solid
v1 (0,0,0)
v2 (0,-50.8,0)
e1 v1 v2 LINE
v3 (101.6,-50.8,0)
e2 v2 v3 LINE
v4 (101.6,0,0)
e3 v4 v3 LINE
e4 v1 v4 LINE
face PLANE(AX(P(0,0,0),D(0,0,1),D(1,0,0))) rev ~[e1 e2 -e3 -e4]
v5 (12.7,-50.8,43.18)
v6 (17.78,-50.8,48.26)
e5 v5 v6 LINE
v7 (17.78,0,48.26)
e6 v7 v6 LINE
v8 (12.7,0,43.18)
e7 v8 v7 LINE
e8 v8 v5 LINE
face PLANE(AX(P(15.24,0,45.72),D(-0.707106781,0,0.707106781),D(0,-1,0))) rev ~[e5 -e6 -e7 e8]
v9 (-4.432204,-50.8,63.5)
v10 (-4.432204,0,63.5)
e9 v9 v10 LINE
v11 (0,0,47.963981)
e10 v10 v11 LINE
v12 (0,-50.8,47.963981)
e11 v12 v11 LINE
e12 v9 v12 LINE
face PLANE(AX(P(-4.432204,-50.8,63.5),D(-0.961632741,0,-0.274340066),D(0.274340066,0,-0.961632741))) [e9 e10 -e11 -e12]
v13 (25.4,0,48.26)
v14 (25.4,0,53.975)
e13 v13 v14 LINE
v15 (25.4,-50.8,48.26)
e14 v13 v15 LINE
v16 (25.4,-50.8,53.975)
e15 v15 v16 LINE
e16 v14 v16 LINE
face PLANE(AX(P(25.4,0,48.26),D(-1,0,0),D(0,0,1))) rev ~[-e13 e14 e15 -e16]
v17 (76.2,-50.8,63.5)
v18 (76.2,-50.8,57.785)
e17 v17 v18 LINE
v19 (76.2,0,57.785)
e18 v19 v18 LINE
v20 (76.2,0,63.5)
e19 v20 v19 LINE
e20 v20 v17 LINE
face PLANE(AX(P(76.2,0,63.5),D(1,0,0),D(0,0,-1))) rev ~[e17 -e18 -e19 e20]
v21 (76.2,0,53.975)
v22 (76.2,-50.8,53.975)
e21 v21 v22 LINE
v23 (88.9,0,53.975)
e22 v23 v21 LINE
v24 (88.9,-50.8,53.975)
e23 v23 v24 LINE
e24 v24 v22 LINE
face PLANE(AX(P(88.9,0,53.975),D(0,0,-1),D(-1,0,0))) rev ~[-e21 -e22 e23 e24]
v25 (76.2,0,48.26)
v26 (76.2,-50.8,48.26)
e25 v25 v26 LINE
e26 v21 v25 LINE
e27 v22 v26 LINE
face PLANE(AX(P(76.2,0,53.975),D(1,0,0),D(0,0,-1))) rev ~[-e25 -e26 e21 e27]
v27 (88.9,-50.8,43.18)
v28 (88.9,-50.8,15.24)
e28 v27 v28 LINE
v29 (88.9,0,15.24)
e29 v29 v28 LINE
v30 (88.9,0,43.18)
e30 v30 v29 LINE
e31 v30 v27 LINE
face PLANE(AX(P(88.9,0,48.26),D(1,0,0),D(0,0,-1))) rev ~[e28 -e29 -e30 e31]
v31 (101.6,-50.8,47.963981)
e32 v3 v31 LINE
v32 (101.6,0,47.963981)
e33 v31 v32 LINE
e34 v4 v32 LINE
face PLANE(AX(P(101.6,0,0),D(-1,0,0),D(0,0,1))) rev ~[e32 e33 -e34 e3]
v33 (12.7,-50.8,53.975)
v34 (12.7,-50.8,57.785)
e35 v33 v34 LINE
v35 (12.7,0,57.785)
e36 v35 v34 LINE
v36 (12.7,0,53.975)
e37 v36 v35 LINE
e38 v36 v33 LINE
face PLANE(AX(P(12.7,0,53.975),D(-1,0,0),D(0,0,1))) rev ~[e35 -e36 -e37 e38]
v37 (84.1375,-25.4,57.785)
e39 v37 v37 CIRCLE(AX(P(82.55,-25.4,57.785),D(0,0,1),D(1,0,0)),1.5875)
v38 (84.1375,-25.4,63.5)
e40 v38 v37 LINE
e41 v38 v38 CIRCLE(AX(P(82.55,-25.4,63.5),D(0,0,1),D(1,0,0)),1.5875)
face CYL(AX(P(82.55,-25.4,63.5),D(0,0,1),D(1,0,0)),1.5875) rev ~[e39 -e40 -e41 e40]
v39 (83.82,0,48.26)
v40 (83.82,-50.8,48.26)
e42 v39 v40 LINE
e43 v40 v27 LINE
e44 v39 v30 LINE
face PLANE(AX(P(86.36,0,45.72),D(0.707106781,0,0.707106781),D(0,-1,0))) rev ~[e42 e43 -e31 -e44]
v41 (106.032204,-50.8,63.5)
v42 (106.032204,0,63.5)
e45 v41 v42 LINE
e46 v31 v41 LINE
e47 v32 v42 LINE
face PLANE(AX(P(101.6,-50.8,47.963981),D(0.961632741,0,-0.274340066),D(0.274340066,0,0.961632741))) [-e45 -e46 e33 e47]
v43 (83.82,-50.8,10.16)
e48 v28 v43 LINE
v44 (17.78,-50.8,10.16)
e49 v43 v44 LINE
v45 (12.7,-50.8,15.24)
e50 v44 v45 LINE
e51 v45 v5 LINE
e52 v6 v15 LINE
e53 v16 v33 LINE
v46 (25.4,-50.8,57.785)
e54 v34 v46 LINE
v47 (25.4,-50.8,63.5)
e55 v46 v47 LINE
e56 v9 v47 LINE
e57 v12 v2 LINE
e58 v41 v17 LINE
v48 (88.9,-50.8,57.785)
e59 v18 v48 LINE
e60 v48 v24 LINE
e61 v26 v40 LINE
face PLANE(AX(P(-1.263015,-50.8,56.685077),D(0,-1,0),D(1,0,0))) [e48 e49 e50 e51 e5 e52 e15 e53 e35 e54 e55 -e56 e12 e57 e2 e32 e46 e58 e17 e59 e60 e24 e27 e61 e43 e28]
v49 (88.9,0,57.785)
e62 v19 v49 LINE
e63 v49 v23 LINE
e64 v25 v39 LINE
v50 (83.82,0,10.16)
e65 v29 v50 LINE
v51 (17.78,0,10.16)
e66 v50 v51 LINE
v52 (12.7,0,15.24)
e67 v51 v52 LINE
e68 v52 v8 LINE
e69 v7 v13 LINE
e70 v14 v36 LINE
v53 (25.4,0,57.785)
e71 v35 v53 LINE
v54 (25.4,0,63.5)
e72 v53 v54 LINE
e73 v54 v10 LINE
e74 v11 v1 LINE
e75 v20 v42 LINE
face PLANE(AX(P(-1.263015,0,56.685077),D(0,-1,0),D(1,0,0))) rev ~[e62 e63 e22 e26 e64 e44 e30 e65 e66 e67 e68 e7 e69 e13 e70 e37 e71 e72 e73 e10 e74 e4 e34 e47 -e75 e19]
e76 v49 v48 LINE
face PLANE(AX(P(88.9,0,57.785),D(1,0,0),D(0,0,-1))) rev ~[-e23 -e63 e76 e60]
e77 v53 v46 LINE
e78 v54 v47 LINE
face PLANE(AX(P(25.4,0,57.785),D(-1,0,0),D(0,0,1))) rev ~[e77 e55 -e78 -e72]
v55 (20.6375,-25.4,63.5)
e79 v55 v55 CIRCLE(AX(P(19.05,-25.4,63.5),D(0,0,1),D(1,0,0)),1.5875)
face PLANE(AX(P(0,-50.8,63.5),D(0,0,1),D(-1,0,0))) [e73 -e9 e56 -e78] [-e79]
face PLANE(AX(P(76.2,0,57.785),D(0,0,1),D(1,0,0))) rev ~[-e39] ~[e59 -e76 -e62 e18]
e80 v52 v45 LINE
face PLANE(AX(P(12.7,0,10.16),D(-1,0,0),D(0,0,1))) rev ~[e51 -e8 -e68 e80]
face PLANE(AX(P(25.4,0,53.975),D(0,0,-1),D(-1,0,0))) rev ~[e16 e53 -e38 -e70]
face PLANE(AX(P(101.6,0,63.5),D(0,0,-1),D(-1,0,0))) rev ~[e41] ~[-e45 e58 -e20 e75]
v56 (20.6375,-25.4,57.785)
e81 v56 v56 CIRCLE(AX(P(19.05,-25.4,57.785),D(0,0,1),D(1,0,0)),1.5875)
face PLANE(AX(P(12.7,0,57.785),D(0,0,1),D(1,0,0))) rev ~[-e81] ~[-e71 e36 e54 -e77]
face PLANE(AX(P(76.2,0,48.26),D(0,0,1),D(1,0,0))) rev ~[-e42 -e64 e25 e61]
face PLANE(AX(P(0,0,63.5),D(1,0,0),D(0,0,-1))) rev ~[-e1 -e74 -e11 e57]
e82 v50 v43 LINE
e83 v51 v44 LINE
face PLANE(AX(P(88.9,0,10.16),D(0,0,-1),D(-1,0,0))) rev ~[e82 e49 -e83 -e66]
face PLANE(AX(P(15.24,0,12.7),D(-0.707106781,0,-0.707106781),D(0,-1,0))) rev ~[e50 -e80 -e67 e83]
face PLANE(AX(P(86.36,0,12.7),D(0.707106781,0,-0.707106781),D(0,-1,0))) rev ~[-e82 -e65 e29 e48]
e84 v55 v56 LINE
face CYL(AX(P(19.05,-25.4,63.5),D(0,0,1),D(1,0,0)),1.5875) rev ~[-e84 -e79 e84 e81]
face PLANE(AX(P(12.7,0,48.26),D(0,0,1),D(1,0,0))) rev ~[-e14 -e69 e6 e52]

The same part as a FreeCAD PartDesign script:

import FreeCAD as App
import Part
import Sketcher
from FreeCAD import Vector
Q = App.Units.Quantity


def edges_at(feature, points):
    """Names of the edges that pass closest to the given points."""
    edges = feature.Shape.Edges
    near = lambda p: min(range(len(edges)), key=lambda i: edges[i].distToShape(Part.Vertex(*p))[0])
    return sorted({f"Edge{near(p) + 1}" for p in points})

doc = App.newDocument("Part")
body = doc.addObject("PartDesign::Body", "Body")

sketch1 = doc.addObject("Sketcher::SketchObject", "Sketch")
body.addObject(sketch1)
sketch1.AttachmentSupport = (doc.XZ_Plane, [""])
sketch1.MapMode = "FlatFace"
sketch1.addGeometry([
    Part.LineSegment(Vector(25.4, 57.8, 0), Vector(25.4, 63.5, 0)),
    Part.LineSegment(Vector(25.4, 63.5, 0), Vector(0, 63.5, 0)),
    Part.LineSegment(Vector(0, 63.5, 0), Vector(0, 0, 0)),
    Part.LineSegment(Vector(0, 0, 0), Vector(101.6, 0, 0)),
    Part.LineSegment(Vector(101.6, 0, 0), Vector(101.6, 63.5, 0)),
    Part.LineSegment(Vector(101.6, 63.5, 0), Vector(76.2, 63.5, 0)),
    Part.LineSegment(Vector(76.2, 63.5, 0), Vector(76.2, 57.8, 0)),
    Part.LineSegment(Vector(76.2, 57.8, 0), Vector(88.9, 57.8, 0)),
    Part.LineSegment(Vector(88.9, 57.8, 0), Vector(88.9, 54, 0)),
    Part.LineSegment(Vector(88.9, 54, 0), Vector(76.2, 54, 0)),
    Part.LineSegment(Vector(76.2, 54, 0), Vector(76.2, 48.3, 0)),
    Part.LineSegment(Vector(76.2, 48.3, 0), Vector(88.9, 48.3, 0)),
    Part.LineSegment(Vector(88.9, 48.3, 0), Vector(88.9, 10.2, 0)),
    Part.LineSegment(Vector(88.9, 10.2, 0), Vector(12.7, 10.2, 0)),
    Part.LineSegment(Vector(12.7, 10.2, 0), Vector(12.7, 48.3, 0)),
    Part.LineSegment(Vector(12.7, 48.3, 0), Vector(25.4, 48.3, 0)),
    Part.LineSegment(Vector(25.4, 48.3, 0), Vector(25.4, 54, 0)),
    Part.LineSegment(Vector(25.4, 54, 0), Vector(12.7, 54, 0)),
    Part.LineSegment(Vector(12.7, 54, 0), Vector(12.7, 57.8, 0)),
    Part.LineSegment(Vector(12.7, 57.8, 0), Vector(25.4, 57.8, 0)),
], False)
sketch1.addConstraint([
    Sketcher.Constraint("Coincident", 0, 2, 1, 1),
    Sketcher.Constraint("Coincident", 1, 2, 2, 1),
    Sketcher.Constraint("Coincident", 2, 2, 3, 1),
    Sketcher.Constraint("Coincident", 3, 2, 4, 1),
    Sketcher.Constraint("Coincident", 4, 2, 5, 1),
    Sketcher.Constraint("Coincident", 5, 2, 6, 1),
    Sketcher.Constraint("Coincident", 6, 2, 7, 1),
    Sketcher.Constraint("Coincident", 7, 2, 8, 1),
    Sketcher.Constraint("Coincident", 8, 2, 9, 1),
    Sketcher.Constraint("Coincident", 9, 2, 10, 1),
    Sketcher.Constraint("Coincident", 10, 2, 11, 1),
    Sketcher.Constraint("Coincident", 11, 2, 12, 1),
    Sketcher.Constraint("Coincident", 12, 2, 13, 1),
    Sketcher.Constraint("Coincident", 13, 2, 14, 1),
    Sketcher.Constraint("Coincident", 14, 2, 15, 1),
    Sketcher.Constraint("Coincident", 15, 2, 16, 1),
    Sketcher.Constraint("Coincident", 16, 2, 17, 1),
    Sketcher.Constraint("Coincident", 17, 2, 18, 1),
    Sketcher.Constraint("Coincident", 18, 2, 19, 1),
    Sketcher.Constraint("Coincident", 19, 2, 0, 1),
    Sketcher.Constraint("Vertical", 0),
    Sketcher.Constraint("Horizontal", 1),
    Sketcher.Constraint("Vertical", 2),
    Sketcher.Constraint("Horizontal", 3),
    Sketcher.Constraint("Vertical", 4),
    Sketcher.Constraint("Horizontal", 5),
    Sketcher.Constraint("Vertical", 6),
    Sketcher.Constraint("Horizontal", 7),
    Sketcher.Constraint("Vertical", 8),
    Sketcher.Constraint("Horizontal", 9),
    Sketcher.Constraint("Vertical", 10),
    Sketcher.Constraint("Horizontal", 11),
    Sketcher.Constraint("Vertical", 12),
    Sketcher.Constraint("Horizontal", 13),
    Sketcher.Constraint("Vertical", 14),
    Sketcher.Constraint("Horizontal", 15),
    Sketcher.Constraint("Vertical", 16),
    Sketcher.Constraint("Horizontal", 17),
    Sketcher.Constraint("Vertical", 18),
    Sketcher.Constraint("Horizontal", 19),
    Sketcher.Constraint("Coincident", 2, 2, -1, 1),
    Sketcher.Constraint("Horizontal", 1, 2, 4, 2),
    Sketcher.Constraint("Horizontal", 11, 2, 14, 2),
    Sketcher.Constraint("Horizontal", 9, 2, 16, 2),
    Sketcher.Constraint("Horizontal", 7, 2, 18, 2),
    Sketcher.Constraint("Vertical", 6, 2, 9, 2),
    Sketcher.Constraint("Vertical", 8, 2, 11, 2),
    Sketcher.Constraint("Vertical", 0, 2, 15, 2),
    Sketcher.Constraint("Vertical", 14, 2, 17, 2),
    Sketcher.Constraint("Equal", 1, 5),
    Sketcher.Constraint("Equal", 11, 15),
    Sketcher.Constraint("Equal", 6, 10),
    Sketcher.Constraint("DistanceX", 1, 2, 1, 1, Q("1 in")),
    Sketcher.Constraint("DistanceX", 3, 1, 3, 2, Q("4 in")),
    Sketcher.Constraint("DistanceX", 13, 2, 13, 1, Q("3 in")),
    Sketcher.Constraint("DistanceY", 2, 2, 2, 1, Q("2.5 in")),
    Sketcher.Constraint("DistanceY", 12, 2, 12, 1, Q("1.5 in")),
    Sketcher.Constraint("DistanceY", 8, 2, 8, 1, Q("0.15 in")),
    Sketcher.Constraint("DistanceY", -1, 1, 10, 2, Q("1.9 in")),
])
pad1 = doc.addObject("PartDesign::Pad", "Pad")
body.addObject(pad1)
pad1.Profile = sketch1
pad1.Length = Q("2 in")

sketch2 = doc.addObject("Sketcher::SketchObject", "Sketch001")
body.addObject(sketch2)
sketch2.AttachmentSupport = (doc.XY_Plane, [""])
sketch2.MapMode = "FlatFace"
sketch2.AttachmentOffset = App.Placement(Vector(0, 0, 2.5 * 25.4), App.Rotation())
sketch2.addGeometry([
    Part.Circle(Vector(19.1, -25.4, 0), Vector(0, 0, 1), 1.6),
    Part.Circle(Vector(82.5, -25.4, 0), Vector(0, 0, 1), 1.6),
], False)
sketch2.addConstraint([
    Sketcher.Constraint("Equal", 0, 1),
    Sketcher.Constraint("Horizontal", 0, 3, 1, 3),
    Sketcher.Constraint("Diameter", 0, Q("0.125 in")),
    Sketcher.Constraint("DistanceY", 0, 3, -1, 1, Q("1 in")),
    Sketcher.Constraint("DistanceX", 0, 3, 1, 3, Q("2.5 in")),
    Sketcher.Constraint("DistanceX", -1, 1, 0, 3, Q("0.75 in")),
])
pocket1 = doc.addObject("PartDesign::Pocket", "Pocket")
body.addObject(pocket1)
pocket1.Profile = sketch2
pocket1.Length = Q("0.225 in")
doc.recompute()

chamfer = doc.addObject("PartDesign::Chamfer", "Chamfer")
body.addObject(chamfer)
chamfer.Base = (pocket1, edges_at(pocket1, [
    (12.7, -25.4, 10.16),
    (88.9, -25.4, 10.16),
    (12.7, -25.4, 48.26),
    (88.9, -25.4, 48.26),
]))
chamfer.Size = Q("0.2 in")

sketch3 = doc.addObject("Sketcher::SketchObject", "Sketch002")
body.addObject(sketch3)
sketch3.AttachmentSupport = (doc.XZ_Plane, [""])
sketch3.MapMode = "FlatFace"
sketch3.AttachmentOffset = App.Placement(Vector(0, 0, 2 * 25.4), App.Rotation())
sketch3.addGeometry([
    Part.LineSegment(Vector(0, 48, 0), Vector(0, 63.5, 0)),
    Part.LineSegment(Vector(0, 63.5, 0), Vector(-4.4, 63.5, 0)),
    Part.LineSegment(Vector(-4.4, 63.5, 0), Vector(0, 48, 0)),
    Part.LineSegment(Vector(101.6, 63.5, 0), Vector(101.6, 48, 0)),
    Part.LineSegment(Vector(101.6, 48, 0), Vector(106, 63.5, 0)),
    Part.LineSegment(Vector(106, 63.5, 0), Vector(101.6, 63.5, 0)),
], False)
sketch3.addConstraint([
    Sketcher.Constraint("Coincident", 0, 2, 1, 1),
    Sketcher.Constraint("Coincident", 1, 2, 2, 1),
    Sketcher.Constraint("Coincident", 2, 2, 0, 1),
    Sketcher.Constraint("Coincident", 3, 2, 4, 1),
    Sketcher.Constraint("Coincident", 4, 2, 5, 1),
    Sketcher.Constraint("Coincident", 5, 2, 3, 1),
    Sketcher.Constraint("Vertical", 0),
    Sketcher.Constraint("Horizontal", 1),
    Sketcher.Constraint("Vertical", 3),
    Sketcher.Constraint("Horizontal", 5),
    Sketcher.Constraint("PointOnObject", 0, 2, -2),
    Sketcher.Constraint("Horizontal", 2, 2, 3, 2),
    Sketcher.Constraint("Horizontal", 1, 2, 4, 2),
    Sketcher.Constraint("Equal", 1, 5),
    Sketcher.Constraint("DistanceX", -1, 1, 3, 2, Q("4 in")),
    Sketcher.Constraint("DistanceY", -1, 1, 0, 2, Q("2.5 in")),
    Sketcher.Constraint("DistanceY", 0, 1, 0, 2, Q("15.536019 mm")),
    Sketcher.Constraint("DistanceX", 1, 2, 1, 1, Q("4.432204 mm")),
])
pad2 = doc.addObject("PartDesign::Pad", "Pad001")
body.addObject(pad2)
pad2.Profile = sketch3
pad2.Length = Q("2 in")
pad2.Reversed = True

doc.recompute()
